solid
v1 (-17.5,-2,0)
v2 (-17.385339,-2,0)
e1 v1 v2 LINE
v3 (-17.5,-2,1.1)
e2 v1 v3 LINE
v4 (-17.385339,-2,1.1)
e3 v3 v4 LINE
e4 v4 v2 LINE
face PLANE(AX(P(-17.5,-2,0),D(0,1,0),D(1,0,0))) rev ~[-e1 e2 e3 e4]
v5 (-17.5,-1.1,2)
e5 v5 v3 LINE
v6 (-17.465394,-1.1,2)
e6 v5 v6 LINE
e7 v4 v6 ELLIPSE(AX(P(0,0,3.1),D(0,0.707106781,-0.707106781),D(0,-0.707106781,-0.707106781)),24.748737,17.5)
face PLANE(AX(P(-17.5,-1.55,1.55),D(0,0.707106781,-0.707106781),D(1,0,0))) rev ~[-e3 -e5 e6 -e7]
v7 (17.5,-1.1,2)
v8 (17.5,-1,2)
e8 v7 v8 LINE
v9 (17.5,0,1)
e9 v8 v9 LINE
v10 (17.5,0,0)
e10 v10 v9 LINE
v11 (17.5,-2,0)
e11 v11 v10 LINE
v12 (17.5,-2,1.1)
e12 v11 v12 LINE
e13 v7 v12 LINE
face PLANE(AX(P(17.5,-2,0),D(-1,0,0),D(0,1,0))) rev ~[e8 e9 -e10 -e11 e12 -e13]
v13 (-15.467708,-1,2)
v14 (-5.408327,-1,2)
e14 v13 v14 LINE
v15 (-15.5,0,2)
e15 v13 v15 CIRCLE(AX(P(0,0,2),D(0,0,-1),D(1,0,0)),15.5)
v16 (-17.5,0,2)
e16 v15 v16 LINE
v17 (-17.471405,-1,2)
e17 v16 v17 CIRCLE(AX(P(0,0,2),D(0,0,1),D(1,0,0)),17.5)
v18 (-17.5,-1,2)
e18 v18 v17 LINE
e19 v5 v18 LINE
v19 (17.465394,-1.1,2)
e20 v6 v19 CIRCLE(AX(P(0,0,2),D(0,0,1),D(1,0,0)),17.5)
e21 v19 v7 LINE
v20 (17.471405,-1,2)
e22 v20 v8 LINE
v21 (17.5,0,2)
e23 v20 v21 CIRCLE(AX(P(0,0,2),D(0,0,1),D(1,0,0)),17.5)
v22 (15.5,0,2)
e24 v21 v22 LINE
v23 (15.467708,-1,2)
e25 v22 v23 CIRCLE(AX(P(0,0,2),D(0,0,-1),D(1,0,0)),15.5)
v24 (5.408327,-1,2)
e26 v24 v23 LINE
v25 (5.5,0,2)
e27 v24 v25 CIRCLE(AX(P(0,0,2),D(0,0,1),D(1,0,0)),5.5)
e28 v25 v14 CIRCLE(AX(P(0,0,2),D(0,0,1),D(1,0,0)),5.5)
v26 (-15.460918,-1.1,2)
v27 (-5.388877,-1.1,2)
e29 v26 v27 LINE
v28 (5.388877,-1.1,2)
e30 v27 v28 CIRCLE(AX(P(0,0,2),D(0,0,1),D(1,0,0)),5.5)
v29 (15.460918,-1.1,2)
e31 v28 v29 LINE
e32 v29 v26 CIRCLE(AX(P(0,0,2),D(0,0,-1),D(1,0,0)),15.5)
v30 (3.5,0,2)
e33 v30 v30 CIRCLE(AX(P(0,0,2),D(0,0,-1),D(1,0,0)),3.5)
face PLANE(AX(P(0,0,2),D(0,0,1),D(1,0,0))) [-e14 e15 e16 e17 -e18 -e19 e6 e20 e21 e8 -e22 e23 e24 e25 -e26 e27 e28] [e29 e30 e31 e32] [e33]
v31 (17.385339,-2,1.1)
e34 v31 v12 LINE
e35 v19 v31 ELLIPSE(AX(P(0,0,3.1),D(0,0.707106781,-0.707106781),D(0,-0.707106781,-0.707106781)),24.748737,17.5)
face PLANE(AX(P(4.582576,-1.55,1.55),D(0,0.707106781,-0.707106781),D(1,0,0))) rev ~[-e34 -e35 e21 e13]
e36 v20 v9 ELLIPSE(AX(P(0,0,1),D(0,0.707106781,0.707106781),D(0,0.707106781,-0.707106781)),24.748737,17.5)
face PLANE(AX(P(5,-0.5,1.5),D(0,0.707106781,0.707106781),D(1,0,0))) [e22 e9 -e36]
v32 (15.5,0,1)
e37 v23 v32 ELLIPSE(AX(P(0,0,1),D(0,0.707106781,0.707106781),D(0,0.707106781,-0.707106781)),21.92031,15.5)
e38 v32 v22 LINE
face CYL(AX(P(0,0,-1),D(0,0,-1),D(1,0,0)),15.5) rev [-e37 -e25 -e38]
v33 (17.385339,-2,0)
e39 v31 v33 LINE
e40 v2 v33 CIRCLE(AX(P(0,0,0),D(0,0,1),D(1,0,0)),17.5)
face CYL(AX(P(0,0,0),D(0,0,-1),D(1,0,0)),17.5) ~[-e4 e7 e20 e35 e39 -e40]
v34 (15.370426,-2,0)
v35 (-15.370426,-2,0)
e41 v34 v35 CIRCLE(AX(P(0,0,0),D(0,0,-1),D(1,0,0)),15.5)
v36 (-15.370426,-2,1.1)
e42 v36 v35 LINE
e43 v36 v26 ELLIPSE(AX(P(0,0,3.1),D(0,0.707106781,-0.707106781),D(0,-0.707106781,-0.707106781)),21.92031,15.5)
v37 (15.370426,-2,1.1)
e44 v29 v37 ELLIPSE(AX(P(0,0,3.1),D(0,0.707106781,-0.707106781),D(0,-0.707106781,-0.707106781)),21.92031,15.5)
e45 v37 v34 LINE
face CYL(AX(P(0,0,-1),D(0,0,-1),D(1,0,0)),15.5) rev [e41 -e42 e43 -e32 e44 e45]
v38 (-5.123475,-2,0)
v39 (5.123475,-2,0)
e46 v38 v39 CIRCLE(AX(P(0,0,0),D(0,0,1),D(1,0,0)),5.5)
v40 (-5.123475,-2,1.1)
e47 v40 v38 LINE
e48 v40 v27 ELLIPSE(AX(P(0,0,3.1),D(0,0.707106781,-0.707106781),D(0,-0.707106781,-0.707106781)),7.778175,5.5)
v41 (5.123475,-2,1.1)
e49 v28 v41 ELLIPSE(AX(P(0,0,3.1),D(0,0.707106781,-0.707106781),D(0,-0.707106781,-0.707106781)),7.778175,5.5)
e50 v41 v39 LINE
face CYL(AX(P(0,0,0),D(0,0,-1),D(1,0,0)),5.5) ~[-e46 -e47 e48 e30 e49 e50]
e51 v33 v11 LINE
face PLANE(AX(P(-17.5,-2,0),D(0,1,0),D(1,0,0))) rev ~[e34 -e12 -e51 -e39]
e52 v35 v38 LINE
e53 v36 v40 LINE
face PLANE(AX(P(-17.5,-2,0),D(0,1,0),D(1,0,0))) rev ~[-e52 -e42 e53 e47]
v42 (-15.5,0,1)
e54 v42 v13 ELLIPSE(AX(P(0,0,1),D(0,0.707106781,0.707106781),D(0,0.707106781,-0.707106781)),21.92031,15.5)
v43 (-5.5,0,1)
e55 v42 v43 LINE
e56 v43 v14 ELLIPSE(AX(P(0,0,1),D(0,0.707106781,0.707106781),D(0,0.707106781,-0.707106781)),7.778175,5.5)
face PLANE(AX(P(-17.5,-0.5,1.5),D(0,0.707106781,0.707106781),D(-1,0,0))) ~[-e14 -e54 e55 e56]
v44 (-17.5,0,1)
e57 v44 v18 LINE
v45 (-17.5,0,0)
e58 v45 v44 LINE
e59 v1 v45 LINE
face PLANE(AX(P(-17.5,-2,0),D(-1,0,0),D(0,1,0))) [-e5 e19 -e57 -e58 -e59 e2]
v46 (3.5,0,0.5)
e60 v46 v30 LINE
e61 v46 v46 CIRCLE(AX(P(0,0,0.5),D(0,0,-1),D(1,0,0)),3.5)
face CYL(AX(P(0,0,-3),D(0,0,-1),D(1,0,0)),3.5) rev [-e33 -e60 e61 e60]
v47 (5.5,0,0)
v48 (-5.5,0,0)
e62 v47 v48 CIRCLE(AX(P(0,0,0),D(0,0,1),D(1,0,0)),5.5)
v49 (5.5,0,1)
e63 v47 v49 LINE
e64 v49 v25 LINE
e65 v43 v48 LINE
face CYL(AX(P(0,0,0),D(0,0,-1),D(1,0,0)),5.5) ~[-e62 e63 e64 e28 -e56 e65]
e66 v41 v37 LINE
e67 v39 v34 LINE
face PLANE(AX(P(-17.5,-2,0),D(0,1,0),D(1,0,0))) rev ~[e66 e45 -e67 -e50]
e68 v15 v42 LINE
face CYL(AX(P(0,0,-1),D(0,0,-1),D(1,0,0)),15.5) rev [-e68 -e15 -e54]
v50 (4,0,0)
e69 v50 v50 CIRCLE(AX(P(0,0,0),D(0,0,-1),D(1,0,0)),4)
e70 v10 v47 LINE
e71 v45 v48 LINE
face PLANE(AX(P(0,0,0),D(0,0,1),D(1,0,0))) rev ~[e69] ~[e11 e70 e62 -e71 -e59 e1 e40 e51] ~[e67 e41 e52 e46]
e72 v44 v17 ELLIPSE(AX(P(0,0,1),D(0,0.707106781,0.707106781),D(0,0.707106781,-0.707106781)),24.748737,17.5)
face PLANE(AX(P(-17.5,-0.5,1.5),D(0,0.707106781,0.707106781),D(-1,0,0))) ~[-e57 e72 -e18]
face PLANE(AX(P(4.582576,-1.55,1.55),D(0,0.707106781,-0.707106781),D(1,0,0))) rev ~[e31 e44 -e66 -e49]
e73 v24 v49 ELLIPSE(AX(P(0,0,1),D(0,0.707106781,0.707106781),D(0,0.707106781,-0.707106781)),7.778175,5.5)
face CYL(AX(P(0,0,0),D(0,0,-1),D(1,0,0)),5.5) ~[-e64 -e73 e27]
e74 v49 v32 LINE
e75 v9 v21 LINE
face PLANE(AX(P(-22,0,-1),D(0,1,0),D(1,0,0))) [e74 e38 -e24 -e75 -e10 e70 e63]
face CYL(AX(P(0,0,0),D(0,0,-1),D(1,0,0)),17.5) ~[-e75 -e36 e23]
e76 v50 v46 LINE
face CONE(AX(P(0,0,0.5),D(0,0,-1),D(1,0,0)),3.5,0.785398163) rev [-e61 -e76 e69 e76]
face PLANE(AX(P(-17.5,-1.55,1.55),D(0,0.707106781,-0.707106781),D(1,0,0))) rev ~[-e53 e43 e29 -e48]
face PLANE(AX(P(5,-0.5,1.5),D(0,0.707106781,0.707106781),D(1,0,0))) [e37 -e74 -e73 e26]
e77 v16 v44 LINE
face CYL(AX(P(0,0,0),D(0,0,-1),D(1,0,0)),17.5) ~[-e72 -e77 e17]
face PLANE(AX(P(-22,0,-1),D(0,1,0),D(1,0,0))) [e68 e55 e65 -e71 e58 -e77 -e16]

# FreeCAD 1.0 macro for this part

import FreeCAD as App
import Part
import Sketcher

V = App.Vector


def edges_at(feature, points):
    """Names of the edges that pass closest to the given points."""
    edges = feature.Shape.Edges
    near = lambda p: min(range(len(edges)), key=lambda i: edges[i].distToShape(Part.Vertex(*p))[0])
    return sorted({f"Edge{near(p) + 1}" for p in points})


def add_polygon(sketch, points):
    """Adds a closed chain of lines whose ends are joined by coincident constraints."""
    first, n = sketch.GeometryCount, len(points)
    for a, b in zip(points, points[1:] + points[:1]):
        sketch.addGeometry(Part.LineSegment(App.Vector(*a, 0), App.Vector(*b, 0)), False)
    for i in range(n):
        sketch.addConstraint(Sketcher.Constraint("Coincident", first + i, 2, first + (i + 1) % n, 1))

doc = App.newDocument("Part")
body = doc.addObject("PartDesign::Body", "Body")

# Sketch on XY plane
sketch1 = body.newObject("Sketcher::SketchObject", "Sketch")
sketch1.AttachmentSupport = (doc.getObject("XY_Plane"), [""])
sketch1.MapMode = "FlatFace"
sketch1.AttachmentOffset = App.Placement(V(0, 0, -1), App.Rotation())
add_polygon(sketch1, [(-22, 27), (-22, 0), (21, 0), (21, 27)])  # lines 0-3
sketch1.addConstraint([
    Sketcher.Constraint("Vertical", 0),
    Sketcher.Constraint("Horizontal", 1),
    Sketcher.Constraint("Vertical", 2),
    Sketcher.Constraint("Horizontal", 3),
    Sketcher.Constraint("PointOnObject", 0, 2, -1),
    Sketcher.Constraint("DistanceX", 1, 1, 1, 2, 43.0),
    Sketcher.Constraint("DistanceY", 0, 2, 0, 1, 27.0),
    Sketcher.Constraint("DistanceX", 0, 2, -1, 1, 22.0),
])
pad1 = body.newObject("PartDesign::Pad", "Pad")
pad1.Profile = sketch1
pad1.Length = 10
body2 = doc.addObject("PartDesign::Body", "Body001")

# Sketch on XY plane
sketch2 = body2.newObject("Sketcher::SketchObject", "Sketch001")
sketch2.AttachmentSupport = (doc.getObject("XY_Plane001"), [""])
sketch2.MapMode = "FlatFace"
sketch2.AttachmentOffset = App.Placement(V(0, 0, -1), App.Rotation())
sketch2.addGeometry(Part.Circle(V(0, 0, 0), V(0, 0, 1), 15.5), False)
sketch2.addConstraint([
    Sketcher.Constraint("Coincident", 0, 3, -1, 1),
    Sketcher.Constraint("Diameter", 0, 31.0),
])
pad2 = body2.newObject("PartDesign::Pad", "Pad001")
pad2.Profile = sketch2
pad2.Length = 9
body3 = doc.addObject("PartDesign::Body", "Body002")

# Sketch on XY plane
sketch3 = body3.newObject("Sketcher::SketchObject", "Sketch002")
sketch3.AttachmentSupport = (doc.getObject("XY_Plane002"), [""])
sketch3.MapMode = "FlatFace"
sketch3.addGeometry(Part.Circle(V(0, 0, 0), V(0, 0, 1), 17.5), False)
sketch3.addConstraint([
    Sketcher.Constraint("Coincident", 0, 3, -1, 1),
    Sketcher.Constraint("Diameter", 0, 35.0),
])
pad3 = body3.newObject("PartDesign::Pad", "Pad002")
pad3.Profile = sketch3
pad3.Length = 2
doc.recompute()

boolean = body3.newObject("PartDesign::Boolean", "Boolean")
boolean.Type = "Cut"
boolean.addObjects([body2])
doc.recompute()

boolean2 = body3.newObject("PartDesign::Boolean", "Boolean001")
boolean2.Type = "Cut"
boolean2.addObjects([body])
body4 = doc.addObject("PartDesign::Body", "Body003")

# Sketch on XY plane
sketch4 = body4.newObject("Sketcher::SketchObject", "Sketch003")
sketch4.AttachmentSupport = (doc.getObject("XY_Plane003"), [""])
sketch4.MapMode = "FlatFace"
sketch4.AttachmentOffset = App.Placement(V(0, 0, -3), App.Rotation())
sketch4.addGeometry(Part.Circle(V(0, 0, 0), V(0, 0, 1), 3.5), False)
sketch4.addConstraint([
    Sketcher.Constraint("Coincident", 0, 3, -1, 1),
    Sketcher.Constraint("Diameter", 0, 7.0),
])
pad4 = body4.newObject("PartDesign::Pad", "Pad003")
pad4.Profile = sketch4
pad4.Length = 10
body5 = doc.addObject("PartDesign::Body", "Body004")

# Sketch on XY plane
sketch5 = body5.newObject("Sketcher::SketchObject", "Sketch004")
sketch5.AttachmentSupport = (doc.getObject("XY_Plane004"), [""])
sketch5.MapMode = "FlatFace"
sketch5.addGeometry(Part.Circle(V(0, 0, 0), V(0, 0, 1), 5.5), False)
sketch5.addConstraint([
    Sketcher.Constraint("Coincident", 0, 3, -1, 1),
    Sketcher.Constraint("Diameter", 0, 11.0),
])
pad5 = body5.newObject("PartDesign::Pad", "Pad004")
pad5.Profile = sketch5
pad5.Length = 2
doc.recompute()

boolean3 = body5.newObject("PartDesign::Boolean", "Boolean002")
boolean3.Type = "Cut"
boolean3.addObjects([body4])
body6 = doc.addObject("PartDesign::Body", "Body005")

# Sketch on XY plane
sketch6 = body6.newObject("Sketcher::SketchObject", "Sketch005")
sketch6.AttachmentSupport = (doc.getObject("XY_Plane005"), [""])
sketch6.MapMode = "FlatFace"
sketch6.AttachmentOffset = App.Placement(V(0, 0, -3), App.Rotation())
sketch6.addGeometry(Part.Circle(V(0, 0, 0), V(0, 0, 1), 5), False)
sketch6.addConstraint([
    Sketcher.Constraint("Coincident", 0, 3, -1, 1),
    Sketcher.Constraint("Diameter", 0, 10.0),
])
pad6 = body6.newObject("PartDesign::Pad", "Pad005")
pad6.Profile = sketch6
pad6.Length = 10
body7 = doc.addObject("PartDesign::Body", "Body006")
body7.AllowCompound = True

# Sketch on XY plane
sketch7 = body7.newObject("Sketcher::SketchObject", "Sketch006")
sketch7.AttachmentSupport = (doc.getObject("XY_Plane006"), [""])
sketch7.MapMode = "FlatFace"
add_polygon(sketch7, [(-17.5, 0), (-17.5, -2), (17.5, -2), (17.5, 0)])  # lines 0-3
sketch7.addConstraint([
    Sketcher.Constraint("Vertical", 0),
    Sketcher.Constraint("Horizontal", 1),
    Sketcher.Constraint("Vertical", 2),
    Sketcher.Constraint("Horizontal", 3),
    Sketcher.Constraint("Symmetric", 2, 2, 3, 2, -1, 1),
    Sketcher.Constraint("DistanceX", 1, 1, 1, 2, 35.0),
    Sketcher.Constraint("DistanceY", 0, 2, 0, 1, 2.0),
])
pad7 = body7.newObject("PartDesign::Pad", "Pad006")
pad7.Profile = sketch7
pad7.Length = 2
doc.recompute()

boolean4 = body7.newObject("PartDesign::Boolean", "Boolean003")
boolean4.Type = "Cut"
boolean4.addObjects([body6])
doc.recompute()

chamfer = body7.newObject("PartDesign::Chamfer", "Chamfer")
chamfer.Base = (boolean4, edges_at(boolean4, [(11.25, 0, 2)]))
chamfer.Size = 1
doc.recompute()

chamfer2 = body7.newObject("PartDesign::Chamfer", "Chamfer001")
chamfer2.Base = (chamfer, edges_at(chamfer, [(11.041, -2, 2)]))
chamfer2.Size = 0.9
doc.recompute()

chamfer3 = body7.newObject("PartDesign::Chamfer", "Chamfer002")
chamfer3.Base = (chamfer2, edges_at(chamfer2, [(-11.25, 0, 2)]))
chamfer3.Size = 1
doc.recompute()

chamfer4 = body7.newObject("PartDesign::Chamfer", "Chamfer003")
chamfer4.Base = (chamfer3, edges_at(chamfer3, [(-11.041, -2, 2)]))
chamfer4.Size = 0.9
doc.recompute()

boolean5 = body7.newObject("PartDesign::Boolean", "Boolean004")
boolean5.Type = "Fuse"
boolean5.addObjects([body3])
doc.recompute()

boolean6 = body7.newObject("PartDesign::Boolean", "Boolean005")
boolean6.Type = "Fuse"
boolean6.addObjects([body5])
doc.recompute()

chamfer5 = body7.newObject("PartDesign::Chamfer", "Chamfer004")
chamfer5.Base = (boolean6, edges_at(boolean6, [(-3.5, 0, 0)]))
chamfer5.Size = 0.5

doc.recompute()
